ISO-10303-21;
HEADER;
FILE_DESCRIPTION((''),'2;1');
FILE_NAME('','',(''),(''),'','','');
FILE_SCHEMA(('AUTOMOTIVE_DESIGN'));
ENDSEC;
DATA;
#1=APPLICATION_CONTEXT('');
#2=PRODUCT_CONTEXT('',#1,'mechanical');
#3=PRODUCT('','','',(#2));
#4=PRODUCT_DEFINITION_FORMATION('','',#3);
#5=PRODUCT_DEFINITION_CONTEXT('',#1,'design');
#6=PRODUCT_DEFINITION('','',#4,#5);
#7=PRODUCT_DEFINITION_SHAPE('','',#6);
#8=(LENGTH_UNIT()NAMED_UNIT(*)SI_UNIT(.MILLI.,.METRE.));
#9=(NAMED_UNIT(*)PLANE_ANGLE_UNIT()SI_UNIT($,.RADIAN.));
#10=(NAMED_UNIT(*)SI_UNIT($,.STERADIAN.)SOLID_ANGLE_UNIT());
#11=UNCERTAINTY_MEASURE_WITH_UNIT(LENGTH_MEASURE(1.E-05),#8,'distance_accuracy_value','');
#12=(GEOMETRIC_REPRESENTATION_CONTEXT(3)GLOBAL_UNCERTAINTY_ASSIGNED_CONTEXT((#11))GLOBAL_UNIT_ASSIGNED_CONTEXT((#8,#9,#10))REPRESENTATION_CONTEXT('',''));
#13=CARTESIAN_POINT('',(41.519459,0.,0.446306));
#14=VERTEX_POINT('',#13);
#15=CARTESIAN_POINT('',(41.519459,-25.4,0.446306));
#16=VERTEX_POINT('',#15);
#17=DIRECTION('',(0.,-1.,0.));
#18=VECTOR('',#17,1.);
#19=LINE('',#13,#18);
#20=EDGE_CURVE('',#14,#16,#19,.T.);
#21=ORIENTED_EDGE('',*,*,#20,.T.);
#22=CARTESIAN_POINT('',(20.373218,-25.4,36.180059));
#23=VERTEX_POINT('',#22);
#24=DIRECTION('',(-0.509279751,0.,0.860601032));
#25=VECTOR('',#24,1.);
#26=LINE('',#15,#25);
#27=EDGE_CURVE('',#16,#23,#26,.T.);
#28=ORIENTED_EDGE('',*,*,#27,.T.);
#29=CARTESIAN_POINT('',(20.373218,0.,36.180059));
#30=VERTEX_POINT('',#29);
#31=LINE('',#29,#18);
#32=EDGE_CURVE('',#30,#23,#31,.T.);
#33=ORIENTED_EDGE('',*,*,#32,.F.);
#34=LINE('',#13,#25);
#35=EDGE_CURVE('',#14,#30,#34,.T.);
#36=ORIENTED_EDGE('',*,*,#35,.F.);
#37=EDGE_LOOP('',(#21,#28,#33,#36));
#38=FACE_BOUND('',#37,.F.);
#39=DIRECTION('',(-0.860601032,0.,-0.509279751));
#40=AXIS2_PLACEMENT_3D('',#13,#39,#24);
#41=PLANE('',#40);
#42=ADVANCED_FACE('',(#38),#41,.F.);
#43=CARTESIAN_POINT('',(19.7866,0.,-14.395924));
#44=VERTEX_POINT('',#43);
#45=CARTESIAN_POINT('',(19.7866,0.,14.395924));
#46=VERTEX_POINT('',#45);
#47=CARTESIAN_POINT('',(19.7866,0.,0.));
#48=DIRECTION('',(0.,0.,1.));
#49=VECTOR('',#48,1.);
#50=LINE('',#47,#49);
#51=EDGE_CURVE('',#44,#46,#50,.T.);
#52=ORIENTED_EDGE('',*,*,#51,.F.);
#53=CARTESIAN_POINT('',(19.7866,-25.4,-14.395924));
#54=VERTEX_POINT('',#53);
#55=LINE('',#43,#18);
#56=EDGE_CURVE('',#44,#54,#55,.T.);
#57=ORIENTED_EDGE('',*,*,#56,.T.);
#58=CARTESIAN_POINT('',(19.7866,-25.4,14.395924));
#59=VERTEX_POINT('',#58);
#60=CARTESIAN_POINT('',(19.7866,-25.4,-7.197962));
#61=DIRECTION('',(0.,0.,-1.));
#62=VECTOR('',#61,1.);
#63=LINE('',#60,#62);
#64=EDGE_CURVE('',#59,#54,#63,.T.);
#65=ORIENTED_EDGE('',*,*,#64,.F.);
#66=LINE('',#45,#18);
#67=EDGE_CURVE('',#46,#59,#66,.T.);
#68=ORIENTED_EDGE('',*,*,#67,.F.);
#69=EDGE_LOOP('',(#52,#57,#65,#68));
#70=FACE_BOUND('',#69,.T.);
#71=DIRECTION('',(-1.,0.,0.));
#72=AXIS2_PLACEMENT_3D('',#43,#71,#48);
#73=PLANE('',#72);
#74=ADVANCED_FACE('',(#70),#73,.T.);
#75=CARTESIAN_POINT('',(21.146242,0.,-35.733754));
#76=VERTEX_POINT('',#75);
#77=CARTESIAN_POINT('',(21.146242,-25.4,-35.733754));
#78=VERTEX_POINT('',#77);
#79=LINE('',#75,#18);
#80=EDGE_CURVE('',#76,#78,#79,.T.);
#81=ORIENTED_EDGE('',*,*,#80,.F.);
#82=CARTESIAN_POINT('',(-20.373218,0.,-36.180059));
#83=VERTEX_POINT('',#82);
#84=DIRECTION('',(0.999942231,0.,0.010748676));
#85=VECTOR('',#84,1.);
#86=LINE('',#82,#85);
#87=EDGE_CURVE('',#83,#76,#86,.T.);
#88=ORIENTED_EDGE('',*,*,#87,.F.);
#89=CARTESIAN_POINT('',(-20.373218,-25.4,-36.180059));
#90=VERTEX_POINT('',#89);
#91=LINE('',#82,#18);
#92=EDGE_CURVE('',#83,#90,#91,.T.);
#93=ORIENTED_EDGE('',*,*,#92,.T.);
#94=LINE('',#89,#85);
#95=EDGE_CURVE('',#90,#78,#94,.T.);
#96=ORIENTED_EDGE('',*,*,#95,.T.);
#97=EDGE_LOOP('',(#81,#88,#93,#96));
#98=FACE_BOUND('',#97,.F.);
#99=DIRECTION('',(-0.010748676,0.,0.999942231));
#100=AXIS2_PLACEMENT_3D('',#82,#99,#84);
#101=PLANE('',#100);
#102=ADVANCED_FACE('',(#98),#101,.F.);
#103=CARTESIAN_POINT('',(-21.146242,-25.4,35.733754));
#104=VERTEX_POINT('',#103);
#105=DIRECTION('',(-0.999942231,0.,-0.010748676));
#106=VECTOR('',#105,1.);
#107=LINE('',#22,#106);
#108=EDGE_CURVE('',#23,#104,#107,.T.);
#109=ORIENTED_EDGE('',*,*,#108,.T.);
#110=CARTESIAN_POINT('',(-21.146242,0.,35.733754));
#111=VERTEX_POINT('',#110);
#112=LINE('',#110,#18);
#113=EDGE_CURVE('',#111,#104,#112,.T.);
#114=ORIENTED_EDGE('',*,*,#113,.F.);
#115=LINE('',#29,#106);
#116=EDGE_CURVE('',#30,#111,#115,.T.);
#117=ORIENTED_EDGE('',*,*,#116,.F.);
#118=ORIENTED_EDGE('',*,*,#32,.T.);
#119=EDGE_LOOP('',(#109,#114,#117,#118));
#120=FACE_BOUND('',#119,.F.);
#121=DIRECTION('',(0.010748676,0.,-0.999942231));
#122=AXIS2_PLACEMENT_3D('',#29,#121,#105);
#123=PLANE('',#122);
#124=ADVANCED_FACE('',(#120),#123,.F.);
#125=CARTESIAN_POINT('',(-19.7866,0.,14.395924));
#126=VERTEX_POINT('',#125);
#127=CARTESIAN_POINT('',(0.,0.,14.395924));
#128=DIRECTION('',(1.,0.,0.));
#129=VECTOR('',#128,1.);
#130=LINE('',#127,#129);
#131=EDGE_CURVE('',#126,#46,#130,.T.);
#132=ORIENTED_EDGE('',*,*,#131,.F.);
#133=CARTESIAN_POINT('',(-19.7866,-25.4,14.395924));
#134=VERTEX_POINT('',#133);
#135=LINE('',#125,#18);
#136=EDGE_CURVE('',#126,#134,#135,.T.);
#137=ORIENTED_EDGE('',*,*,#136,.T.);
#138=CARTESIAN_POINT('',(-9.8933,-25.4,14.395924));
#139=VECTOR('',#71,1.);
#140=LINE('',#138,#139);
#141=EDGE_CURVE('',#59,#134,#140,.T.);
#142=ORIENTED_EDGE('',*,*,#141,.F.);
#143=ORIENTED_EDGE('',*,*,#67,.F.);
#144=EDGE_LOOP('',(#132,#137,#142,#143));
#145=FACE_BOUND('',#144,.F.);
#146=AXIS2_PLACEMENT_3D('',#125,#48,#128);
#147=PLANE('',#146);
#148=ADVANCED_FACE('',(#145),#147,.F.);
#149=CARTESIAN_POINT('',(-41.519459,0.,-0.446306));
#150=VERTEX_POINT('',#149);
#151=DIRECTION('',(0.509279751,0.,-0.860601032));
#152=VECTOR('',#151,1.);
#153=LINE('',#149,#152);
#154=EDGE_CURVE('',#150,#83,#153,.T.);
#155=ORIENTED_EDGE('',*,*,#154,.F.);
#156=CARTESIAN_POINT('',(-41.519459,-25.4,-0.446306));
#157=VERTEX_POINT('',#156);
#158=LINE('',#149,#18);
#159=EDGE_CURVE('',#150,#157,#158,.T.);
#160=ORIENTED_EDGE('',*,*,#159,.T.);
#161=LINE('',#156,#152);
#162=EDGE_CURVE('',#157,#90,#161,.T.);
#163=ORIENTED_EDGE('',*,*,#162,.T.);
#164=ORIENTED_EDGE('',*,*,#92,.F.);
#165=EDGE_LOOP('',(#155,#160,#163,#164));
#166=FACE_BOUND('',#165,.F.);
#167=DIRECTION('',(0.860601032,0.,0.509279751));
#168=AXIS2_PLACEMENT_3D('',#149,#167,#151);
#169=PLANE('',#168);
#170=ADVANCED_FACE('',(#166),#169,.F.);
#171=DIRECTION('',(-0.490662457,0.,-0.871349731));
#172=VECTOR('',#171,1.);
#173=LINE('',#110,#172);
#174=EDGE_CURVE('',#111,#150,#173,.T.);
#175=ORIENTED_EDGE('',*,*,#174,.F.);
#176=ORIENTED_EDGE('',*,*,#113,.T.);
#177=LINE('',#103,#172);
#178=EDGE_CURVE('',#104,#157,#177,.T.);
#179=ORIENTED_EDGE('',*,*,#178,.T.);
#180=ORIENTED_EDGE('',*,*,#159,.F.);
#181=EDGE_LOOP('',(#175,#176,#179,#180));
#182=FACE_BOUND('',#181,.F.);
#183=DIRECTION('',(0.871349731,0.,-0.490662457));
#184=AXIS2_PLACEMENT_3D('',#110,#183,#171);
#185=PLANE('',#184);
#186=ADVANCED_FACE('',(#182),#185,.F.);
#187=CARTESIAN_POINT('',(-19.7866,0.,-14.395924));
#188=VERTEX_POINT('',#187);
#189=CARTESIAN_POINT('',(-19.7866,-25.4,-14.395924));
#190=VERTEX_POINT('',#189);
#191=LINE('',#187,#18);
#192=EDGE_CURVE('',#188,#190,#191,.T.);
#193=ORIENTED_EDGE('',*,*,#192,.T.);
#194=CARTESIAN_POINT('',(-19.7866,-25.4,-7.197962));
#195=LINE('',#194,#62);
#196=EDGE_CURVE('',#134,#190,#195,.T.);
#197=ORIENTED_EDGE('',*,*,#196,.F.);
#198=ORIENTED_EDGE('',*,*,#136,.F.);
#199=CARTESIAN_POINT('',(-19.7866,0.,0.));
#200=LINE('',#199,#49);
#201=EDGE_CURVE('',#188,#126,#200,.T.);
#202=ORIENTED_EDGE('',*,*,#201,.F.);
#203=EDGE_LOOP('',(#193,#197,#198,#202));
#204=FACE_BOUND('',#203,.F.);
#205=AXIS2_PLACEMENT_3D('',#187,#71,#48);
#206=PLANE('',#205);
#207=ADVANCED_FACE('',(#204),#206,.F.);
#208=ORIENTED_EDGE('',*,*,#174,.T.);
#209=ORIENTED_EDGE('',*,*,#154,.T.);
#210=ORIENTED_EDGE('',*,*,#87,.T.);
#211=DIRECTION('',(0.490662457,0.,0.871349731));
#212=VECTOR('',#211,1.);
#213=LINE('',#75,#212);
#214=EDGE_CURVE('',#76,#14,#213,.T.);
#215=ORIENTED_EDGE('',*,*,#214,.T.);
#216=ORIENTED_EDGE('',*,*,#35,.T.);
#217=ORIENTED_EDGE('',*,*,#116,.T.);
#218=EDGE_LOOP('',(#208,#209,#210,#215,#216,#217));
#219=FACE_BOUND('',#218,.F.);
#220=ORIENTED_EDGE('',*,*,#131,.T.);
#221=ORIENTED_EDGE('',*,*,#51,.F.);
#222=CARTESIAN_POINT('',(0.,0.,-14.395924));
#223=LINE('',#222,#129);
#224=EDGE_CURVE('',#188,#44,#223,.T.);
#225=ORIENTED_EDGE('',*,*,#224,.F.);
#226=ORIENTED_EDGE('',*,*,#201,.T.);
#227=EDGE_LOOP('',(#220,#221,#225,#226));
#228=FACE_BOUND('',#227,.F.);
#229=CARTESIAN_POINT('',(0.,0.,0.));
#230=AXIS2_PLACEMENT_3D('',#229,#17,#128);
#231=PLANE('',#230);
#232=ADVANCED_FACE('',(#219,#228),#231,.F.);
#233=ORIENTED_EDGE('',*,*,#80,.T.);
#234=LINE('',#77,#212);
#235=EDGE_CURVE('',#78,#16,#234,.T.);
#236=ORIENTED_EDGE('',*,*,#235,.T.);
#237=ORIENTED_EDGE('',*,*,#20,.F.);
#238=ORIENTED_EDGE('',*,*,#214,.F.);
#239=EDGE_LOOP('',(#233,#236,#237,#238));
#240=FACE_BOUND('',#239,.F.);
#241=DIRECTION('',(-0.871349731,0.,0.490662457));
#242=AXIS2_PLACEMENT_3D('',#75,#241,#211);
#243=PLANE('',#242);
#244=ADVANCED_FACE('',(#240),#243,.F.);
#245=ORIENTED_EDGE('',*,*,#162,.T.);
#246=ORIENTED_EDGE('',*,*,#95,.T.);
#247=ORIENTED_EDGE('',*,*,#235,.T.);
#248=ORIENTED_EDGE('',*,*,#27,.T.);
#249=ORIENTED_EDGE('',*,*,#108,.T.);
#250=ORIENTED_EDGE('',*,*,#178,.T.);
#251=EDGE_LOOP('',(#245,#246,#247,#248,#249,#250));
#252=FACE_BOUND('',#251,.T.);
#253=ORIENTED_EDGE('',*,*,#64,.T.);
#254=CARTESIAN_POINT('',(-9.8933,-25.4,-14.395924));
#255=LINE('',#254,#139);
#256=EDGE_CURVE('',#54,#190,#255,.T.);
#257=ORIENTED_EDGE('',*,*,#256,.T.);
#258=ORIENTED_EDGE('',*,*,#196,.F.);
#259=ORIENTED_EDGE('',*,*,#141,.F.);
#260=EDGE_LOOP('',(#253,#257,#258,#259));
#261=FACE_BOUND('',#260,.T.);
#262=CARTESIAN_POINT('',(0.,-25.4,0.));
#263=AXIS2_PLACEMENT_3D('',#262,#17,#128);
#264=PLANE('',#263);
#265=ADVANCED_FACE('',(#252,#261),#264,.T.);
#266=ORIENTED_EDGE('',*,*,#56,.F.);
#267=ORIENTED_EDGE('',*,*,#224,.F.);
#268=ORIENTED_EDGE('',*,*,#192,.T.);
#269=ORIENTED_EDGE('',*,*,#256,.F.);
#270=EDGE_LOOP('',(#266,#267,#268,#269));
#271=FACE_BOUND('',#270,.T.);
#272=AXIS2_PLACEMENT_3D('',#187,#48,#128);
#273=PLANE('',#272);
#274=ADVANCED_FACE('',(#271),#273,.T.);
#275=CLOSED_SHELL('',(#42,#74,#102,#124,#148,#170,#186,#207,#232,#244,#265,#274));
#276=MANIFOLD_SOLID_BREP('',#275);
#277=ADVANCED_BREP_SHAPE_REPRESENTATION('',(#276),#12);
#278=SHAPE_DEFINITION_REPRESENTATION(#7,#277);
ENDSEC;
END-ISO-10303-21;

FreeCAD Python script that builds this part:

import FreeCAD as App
import Part
import Sketcher
Q = App.Units.Quantity

doc = App.newDocument("Part")
body = doc.addObject("PartDesign::Body", "Body")

# Sketch on XZ plane
sketch1 = body.newObject("Sketcher::SketchObject", "Sketch")
sketch1.AttachmentSupport = (doc.getObject("XZ_Plane"), [""])
sketch1.MapMode = "FlatFace"
sketch1.addGeometry(Part.LineSegment(App.Vector(42, 0, 0), App.Vector(20, 36, 0)), False)
sketch1.addGeometry(Part.LineSegment(App.Vector(20, 36, 0), App.Vector(-21, 36, 0)), False)
sketch1.addGeometry(Part.LineSegment(App.Vector(-21, 36, 0), App.Vector(-42, 0, 0)), False)
sketch1.addGeometry(Part.LineSegment(App.Vector(-42, 0, 0), App.Vector(-20, -36, 0)), False)
sketch1.addGeometry(Part.LineSegment(App.Vector(-20, -36, 0), App.Vector(21, -36, 0)), False)
sketch1.addGeometry(Part.LineSegment(App.Vector(21, -36, 0), App.Vector(42, 0, 0)), False)
sketch1.addConstraint(Sketcher.Constraint("Coincident", 0, 2, 1, 1))
sketch1.addConstraint(Sketcher.Constraint("Coincident", 1, 2, 2, 1))
sketch1.addConstraint(Sketcher.Constraint("Coincident", 2, 2, 3, 1))
sketch1.addConstraint(Sketcher.Constraint("Coincident", 3, 2, 4, 1))
sketch1.addConstraint(Sketcher.Constraint("Coincident", 4, 2, 5, 1))
sketch1.addConstraint(Sketcher.Constraint("Coincident", 5, 2, 0, 1))
sketch1.addConstraint(Sketcher.Constraint("Symmetric", 0, 2, 3, 2, -1, 1))
sketch1.addConstraint(Sketcher.Constraint("Symmetric", 1, 2, 4, 2, -1, 1))
sketch1.addConstraint(Sketcher.Constraint("Symmetric", 2, 2, 5, 2, -1, 1))
sketch1.addConstraint(Sketcher.Constraint("Equal", 0, 1))
sketch1.addConstraint(Sketcher.Constraint("Equal", 1, 2))
sketch1.addConstraint(Sketcher.Constraint("DistanceX", 2, 2, 4, 2, 62.665701))
sketch1.addConstraint(Sketcher.Constraint("Distance", 1, 41.521859))
sketch1.addConstraint(Sketcher.Constraint("DistanceX", -1, 1, 0, 2, 20.373218))
sketch1.addConstraint(Sketcher.Constraint("DistanceY", -1, 1, 0, 2, 36.180059))
pad1 = body.newObject("PartDesign::Pad", "Pad")
pad1.Profile = sketch1
pad1.Length = Q("1 in")

# Sketch on XZ plane
sketch2 = body.newObject("Sketcher::SketchObject", "Sketch001")
sketch2.AttachmentSupport = (doc.getObject("XZ_Plane"), [""])
sketch2.MapMode = "FlatFace"
sketch2.addGeometry(Part.LineSegment(App.Vector(-20, 14, 0), App.Vector(-20, -14, 0)), False)
sketch2.addGeometry(Part.LineSegment(App.Vector(-20, -14, 0), App.Vector(20, -14, 0)), False)
sketch2.addGeometry(Part.LineSegment(App.Vector(20, -14, 0), App.Vector(20, 14, 0)), False)
sketch2.addGeometry(Part.LineSegment(App.Vector(20, 14, 0), App.Vector(-20, 14, 0)), False)
sketch2.addConstraint(Sketcher.Constraint("Coincident", 0, 2, 1, 1))
sketch2.addConstraint(Sketcher.Constraint("Coincident", 1, 2, 2, 1))
sketch2.addConstraint(Sketcher.Constraint("Coincident", 2, 2, 3, 1))
sketch2.addConstraint(Sketcher.Constraint("Coincident", 3, 2, 0, 1))
sketch2.addConstraint(Sketcher.Constraint("Vertical", 0))
sketch2.addConstraint(Sketcher.Constraint("Horizontal", 1))
sketch2.addConstraint(Sketcher.Constraint("Vertical", 2))
sketch2.addConstraint(Sketcher.Constraint("Horizontal", 3))
sketch2.addConstraint(Sketcher.Constraint("Symmetric", 0, 2, 2, 2, -1, 1))
sketch2.addConstraint(Sketcher.Constraint("DistanceX", 1, 1, 1, 2, Q("1.558 in")))
sketch2.addConstraint(Sketcher.Constraint("DistanceY", 0, 2, 0, 1, 28.791848))
pocket1 = body.newObject("PartDesign::Pocket", "Pocket")
pocket1.Profile = sketch2
pocket1.Length = Q("4.78 in")
pocket1.Reversed = True

doc.recompute()
